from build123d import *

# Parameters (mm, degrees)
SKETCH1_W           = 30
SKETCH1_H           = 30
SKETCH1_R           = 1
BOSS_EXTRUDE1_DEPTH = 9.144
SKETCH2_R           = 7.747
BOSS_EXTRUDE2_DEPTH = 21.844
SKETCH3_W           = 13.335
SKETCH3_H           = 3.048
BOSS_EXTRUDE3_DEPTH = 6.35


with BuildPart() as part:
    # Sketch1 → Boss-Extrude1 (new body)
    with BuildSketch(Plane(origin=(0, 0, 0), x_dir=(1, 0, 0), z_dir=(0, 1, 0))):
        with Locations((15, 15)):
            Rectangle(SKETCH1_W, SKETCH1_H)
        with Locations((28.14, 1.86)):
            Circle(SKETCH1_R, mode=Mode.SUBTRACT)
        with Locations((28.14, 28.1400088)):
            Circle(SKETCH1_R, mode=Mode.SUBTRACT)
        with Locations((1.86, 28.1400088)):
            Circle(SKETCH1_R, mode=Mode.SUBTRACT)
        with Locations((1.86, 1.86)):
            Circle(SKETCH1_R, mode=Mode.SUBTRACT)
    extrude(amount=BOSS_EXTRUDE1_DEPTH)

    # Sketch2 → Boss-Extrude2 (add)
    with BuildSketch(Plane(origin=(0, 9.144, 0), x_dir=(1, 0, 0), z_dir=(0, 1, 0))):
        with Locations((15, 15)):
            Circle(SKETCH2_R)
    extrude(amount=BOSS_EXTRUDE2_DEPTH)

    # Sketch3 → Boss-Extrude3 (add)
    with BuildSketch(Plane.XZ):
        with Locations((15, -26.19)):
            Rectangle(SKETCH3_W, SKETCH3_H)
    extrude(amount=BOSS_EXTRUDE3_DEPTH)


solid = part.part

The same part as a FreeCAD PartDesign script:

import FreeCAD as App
import Part
import Sketcher
Q = App.Units.Quantity


def add_polygon(sketch, points):
    """Adds a closed chain of lines whose ends are joined by coincident constraints."""
    first, n = sketch.GeometryCount, len(points)
    for a, b in zip(points, points[1:] + points[:1]):
        sketch.addGeometry(Part.LineSegment(App.Vector(*a, 0), App.Vector(*b, 0)), False)
    for i in range(n):
        sketch.addConstraint(Sketcher.Constraint("Coincident", first + i, 2, first + (i + 1) % n, 1))

doc = App.newDocument("Part")
body = doc.addObject("PartDesign::Body", "Body")

sketch1 = doc.addObject("Sketcher::SketchObject", "Sketch")
body.addObject(sketch1)
sketch1.AttachmentSupport = (doc.XZ_Plane, [""])
sketch1.MapMode = "FlatFace"
add_polygon(sketch1, [(0, -30), (0, 0), (30, 0), (30, -30)])
sketch1.addGeometry(Part.Circle(App.Vector(1.86, -1.86, 0), App.Vector(0, 0, 1), 1), False)
sketch1.addGeometry(Part.Circle(App.Vector(28.14, -1.86, 0), App.Vector(0, 0, 1), 1), False)
sketch1.addGeometry(Part.Circle(App.Vector(1.86, -28.140009, 0), App.Vector(0, 0, 1), 1), False)
sketch1.addGeometry(Part.Circle(App.Vector(28.14, -28.140009, 0), App.Vector(0, 0, 1), 1), False)
sketch1.addConstraint(Sketcher.Constraint("Vertical", 0))
sketch1.addConstraint(Sketcher.Constraint("Horizontal", 1))
sketch1.addConstraint(Sketcher.Constraint("Vertical", 2))
sketch1.addConstraint(Sketcher.Constraint("Horizontal", 3))
sketch1.addConstraint(Sketcher.Constraint("Coincident", 0, 2, -1, 1))
sketch1.addConstraint(Sketcher.Constraint("Equal", 4, 5))
sketch1.addConstraint(Sketcher.Constraint("Equal", 5, 6))
sketch1.addConstraint(Sketcher.Constraint("Equal", 6, 7))
sketch1.addConstraint(Sketcher.Constraint("Horizontal", 4, 3, 5, 3))
sketch1.addConstraint(Sketcher.Constraint("Horizontal", 6, 3, 7, 3))
sketch1.addConstraint(Sketcher.Constraint("Vertical", 4, 3, 6, 3))
sketch1.addConstraint(Sketcher.Constraint("Vertical", 5, 3, 7, 3))
sketch1.addConstraint(Sketcher.Constraint("Equal", 3, 0))
sketch1.addConstraint(Sketcher.Constraint("Diameter", 4, Q("2 mm")))
sketch1.addConstraint(Sketcher.Constraint("DistanceX", 1, 1, 1, 2, Q("30 mm")))
sketch1.addConstraint(Sketcher.Constraint("DistanceX", -1, 1, 4, 3, Q("1.86 mm")))
sketch1.addConstraint(Sketcher.Constraint("DistanceY", 4, 3, -1, 1, Q("1.86 mm")))
sketch1.addConstraint(Sketcher.Constraint("DistanceX", -1, 1, 5, 3, Q("28.14 mm")))
sketch1.addConstraint(Sketcher.Constraint("DistanceY", 6, 3, -1, 1, Q("28.140009 mm")))
pad1 = doc.addObject("PartDesign::Pad", "Pad")
body.addObject(pad1)
pad1.Profile = sketch1
pad1.Length = Q("0.36 in")
pad1.Reversed = True

sketch2 = doc.addObject("Sketcher::SketchObject", "Sketch001")
body.addObject(sketch2)
sketch2.AttachmentSupport = (doc.XZ_Plane, [""])
sketch2.MapMode = "FlatFace"
sketch2.AttachmentOffset = App.Placement(App.Vector(0, 0, -0.36 * 25.4), App.Rotation())
sketch2.addGeometry(Part.Circle(App.Vector(15, -15, 0), App.Vector(0, 0, 1), 7.747), False)
sketch2.addConstraint(Sketcher.Constraint("Diameter", 0, Q("0.61 in")))
sketch2.addConstraint(Sketcher.Constraint("DistanceX", -1, 1, 0, 3, Q("15 mm")))
sketch2.addConstraint(Sketcher.Constraint("DistanceY", 0, 3, -1, 1, Q("15 mm")))
pad2 = doc.addObject("PartDesign::Pad", "Pad001")
body.addObject(pad2)
pad2.Profile = sketch2
pad2.Length = Q("0.86 in")
pad2.Reversed = True

sketch3 = doc.addObject("Sketcher::SketchObject", "Sketch002")
body.addObject(sketch3)
sketch3.AttachmentSupport = (doc.XZ_Plane, [""])
sketch3.MapMode = "FlatFace"
add_polygon(sketch3, [(8.3325, -24.666), (8.3325, -27.714), (21.6675, -27.714), (21.6675, -24.666)])
sketch3.addConstraint(Sketcher.Constraint("Vertical", 0))
sketch3.addConstraint(Sketcher.Constraint("Horizontal", 1))
sketch3.addConstraint(Sketcher.Constraint("Vertical", 2))
sketch3.addConstraint(Sketcher.Constraint("Horizontal", 3))
sketch3.addConstraint(Sketcher.Constraint("DistanceY", 0, 2, 0, 1, Q("0.12 in")))
sketch3.addConstraint(Sketcher.Constraint("DistanceX", 1, 1, 1, 2, Q("0.525 in")))
sketch3.addConstraint(Sketcher.Constraint("DistanceX", -1, 1, 0, 2, Q("8.3325 mm")))
sketch3.addConstraint(Sketcher.Constraint("DistanceY", 0, 2, -1, 1, Q("27.714 mm")))
pad3 = doc.addObject("PartDesign::Pad", "Pad002")
body.addObject(pad3)
pad3.Profile = sketch3
pad3.Length = Q("0.25 in")

doc.recompute()
